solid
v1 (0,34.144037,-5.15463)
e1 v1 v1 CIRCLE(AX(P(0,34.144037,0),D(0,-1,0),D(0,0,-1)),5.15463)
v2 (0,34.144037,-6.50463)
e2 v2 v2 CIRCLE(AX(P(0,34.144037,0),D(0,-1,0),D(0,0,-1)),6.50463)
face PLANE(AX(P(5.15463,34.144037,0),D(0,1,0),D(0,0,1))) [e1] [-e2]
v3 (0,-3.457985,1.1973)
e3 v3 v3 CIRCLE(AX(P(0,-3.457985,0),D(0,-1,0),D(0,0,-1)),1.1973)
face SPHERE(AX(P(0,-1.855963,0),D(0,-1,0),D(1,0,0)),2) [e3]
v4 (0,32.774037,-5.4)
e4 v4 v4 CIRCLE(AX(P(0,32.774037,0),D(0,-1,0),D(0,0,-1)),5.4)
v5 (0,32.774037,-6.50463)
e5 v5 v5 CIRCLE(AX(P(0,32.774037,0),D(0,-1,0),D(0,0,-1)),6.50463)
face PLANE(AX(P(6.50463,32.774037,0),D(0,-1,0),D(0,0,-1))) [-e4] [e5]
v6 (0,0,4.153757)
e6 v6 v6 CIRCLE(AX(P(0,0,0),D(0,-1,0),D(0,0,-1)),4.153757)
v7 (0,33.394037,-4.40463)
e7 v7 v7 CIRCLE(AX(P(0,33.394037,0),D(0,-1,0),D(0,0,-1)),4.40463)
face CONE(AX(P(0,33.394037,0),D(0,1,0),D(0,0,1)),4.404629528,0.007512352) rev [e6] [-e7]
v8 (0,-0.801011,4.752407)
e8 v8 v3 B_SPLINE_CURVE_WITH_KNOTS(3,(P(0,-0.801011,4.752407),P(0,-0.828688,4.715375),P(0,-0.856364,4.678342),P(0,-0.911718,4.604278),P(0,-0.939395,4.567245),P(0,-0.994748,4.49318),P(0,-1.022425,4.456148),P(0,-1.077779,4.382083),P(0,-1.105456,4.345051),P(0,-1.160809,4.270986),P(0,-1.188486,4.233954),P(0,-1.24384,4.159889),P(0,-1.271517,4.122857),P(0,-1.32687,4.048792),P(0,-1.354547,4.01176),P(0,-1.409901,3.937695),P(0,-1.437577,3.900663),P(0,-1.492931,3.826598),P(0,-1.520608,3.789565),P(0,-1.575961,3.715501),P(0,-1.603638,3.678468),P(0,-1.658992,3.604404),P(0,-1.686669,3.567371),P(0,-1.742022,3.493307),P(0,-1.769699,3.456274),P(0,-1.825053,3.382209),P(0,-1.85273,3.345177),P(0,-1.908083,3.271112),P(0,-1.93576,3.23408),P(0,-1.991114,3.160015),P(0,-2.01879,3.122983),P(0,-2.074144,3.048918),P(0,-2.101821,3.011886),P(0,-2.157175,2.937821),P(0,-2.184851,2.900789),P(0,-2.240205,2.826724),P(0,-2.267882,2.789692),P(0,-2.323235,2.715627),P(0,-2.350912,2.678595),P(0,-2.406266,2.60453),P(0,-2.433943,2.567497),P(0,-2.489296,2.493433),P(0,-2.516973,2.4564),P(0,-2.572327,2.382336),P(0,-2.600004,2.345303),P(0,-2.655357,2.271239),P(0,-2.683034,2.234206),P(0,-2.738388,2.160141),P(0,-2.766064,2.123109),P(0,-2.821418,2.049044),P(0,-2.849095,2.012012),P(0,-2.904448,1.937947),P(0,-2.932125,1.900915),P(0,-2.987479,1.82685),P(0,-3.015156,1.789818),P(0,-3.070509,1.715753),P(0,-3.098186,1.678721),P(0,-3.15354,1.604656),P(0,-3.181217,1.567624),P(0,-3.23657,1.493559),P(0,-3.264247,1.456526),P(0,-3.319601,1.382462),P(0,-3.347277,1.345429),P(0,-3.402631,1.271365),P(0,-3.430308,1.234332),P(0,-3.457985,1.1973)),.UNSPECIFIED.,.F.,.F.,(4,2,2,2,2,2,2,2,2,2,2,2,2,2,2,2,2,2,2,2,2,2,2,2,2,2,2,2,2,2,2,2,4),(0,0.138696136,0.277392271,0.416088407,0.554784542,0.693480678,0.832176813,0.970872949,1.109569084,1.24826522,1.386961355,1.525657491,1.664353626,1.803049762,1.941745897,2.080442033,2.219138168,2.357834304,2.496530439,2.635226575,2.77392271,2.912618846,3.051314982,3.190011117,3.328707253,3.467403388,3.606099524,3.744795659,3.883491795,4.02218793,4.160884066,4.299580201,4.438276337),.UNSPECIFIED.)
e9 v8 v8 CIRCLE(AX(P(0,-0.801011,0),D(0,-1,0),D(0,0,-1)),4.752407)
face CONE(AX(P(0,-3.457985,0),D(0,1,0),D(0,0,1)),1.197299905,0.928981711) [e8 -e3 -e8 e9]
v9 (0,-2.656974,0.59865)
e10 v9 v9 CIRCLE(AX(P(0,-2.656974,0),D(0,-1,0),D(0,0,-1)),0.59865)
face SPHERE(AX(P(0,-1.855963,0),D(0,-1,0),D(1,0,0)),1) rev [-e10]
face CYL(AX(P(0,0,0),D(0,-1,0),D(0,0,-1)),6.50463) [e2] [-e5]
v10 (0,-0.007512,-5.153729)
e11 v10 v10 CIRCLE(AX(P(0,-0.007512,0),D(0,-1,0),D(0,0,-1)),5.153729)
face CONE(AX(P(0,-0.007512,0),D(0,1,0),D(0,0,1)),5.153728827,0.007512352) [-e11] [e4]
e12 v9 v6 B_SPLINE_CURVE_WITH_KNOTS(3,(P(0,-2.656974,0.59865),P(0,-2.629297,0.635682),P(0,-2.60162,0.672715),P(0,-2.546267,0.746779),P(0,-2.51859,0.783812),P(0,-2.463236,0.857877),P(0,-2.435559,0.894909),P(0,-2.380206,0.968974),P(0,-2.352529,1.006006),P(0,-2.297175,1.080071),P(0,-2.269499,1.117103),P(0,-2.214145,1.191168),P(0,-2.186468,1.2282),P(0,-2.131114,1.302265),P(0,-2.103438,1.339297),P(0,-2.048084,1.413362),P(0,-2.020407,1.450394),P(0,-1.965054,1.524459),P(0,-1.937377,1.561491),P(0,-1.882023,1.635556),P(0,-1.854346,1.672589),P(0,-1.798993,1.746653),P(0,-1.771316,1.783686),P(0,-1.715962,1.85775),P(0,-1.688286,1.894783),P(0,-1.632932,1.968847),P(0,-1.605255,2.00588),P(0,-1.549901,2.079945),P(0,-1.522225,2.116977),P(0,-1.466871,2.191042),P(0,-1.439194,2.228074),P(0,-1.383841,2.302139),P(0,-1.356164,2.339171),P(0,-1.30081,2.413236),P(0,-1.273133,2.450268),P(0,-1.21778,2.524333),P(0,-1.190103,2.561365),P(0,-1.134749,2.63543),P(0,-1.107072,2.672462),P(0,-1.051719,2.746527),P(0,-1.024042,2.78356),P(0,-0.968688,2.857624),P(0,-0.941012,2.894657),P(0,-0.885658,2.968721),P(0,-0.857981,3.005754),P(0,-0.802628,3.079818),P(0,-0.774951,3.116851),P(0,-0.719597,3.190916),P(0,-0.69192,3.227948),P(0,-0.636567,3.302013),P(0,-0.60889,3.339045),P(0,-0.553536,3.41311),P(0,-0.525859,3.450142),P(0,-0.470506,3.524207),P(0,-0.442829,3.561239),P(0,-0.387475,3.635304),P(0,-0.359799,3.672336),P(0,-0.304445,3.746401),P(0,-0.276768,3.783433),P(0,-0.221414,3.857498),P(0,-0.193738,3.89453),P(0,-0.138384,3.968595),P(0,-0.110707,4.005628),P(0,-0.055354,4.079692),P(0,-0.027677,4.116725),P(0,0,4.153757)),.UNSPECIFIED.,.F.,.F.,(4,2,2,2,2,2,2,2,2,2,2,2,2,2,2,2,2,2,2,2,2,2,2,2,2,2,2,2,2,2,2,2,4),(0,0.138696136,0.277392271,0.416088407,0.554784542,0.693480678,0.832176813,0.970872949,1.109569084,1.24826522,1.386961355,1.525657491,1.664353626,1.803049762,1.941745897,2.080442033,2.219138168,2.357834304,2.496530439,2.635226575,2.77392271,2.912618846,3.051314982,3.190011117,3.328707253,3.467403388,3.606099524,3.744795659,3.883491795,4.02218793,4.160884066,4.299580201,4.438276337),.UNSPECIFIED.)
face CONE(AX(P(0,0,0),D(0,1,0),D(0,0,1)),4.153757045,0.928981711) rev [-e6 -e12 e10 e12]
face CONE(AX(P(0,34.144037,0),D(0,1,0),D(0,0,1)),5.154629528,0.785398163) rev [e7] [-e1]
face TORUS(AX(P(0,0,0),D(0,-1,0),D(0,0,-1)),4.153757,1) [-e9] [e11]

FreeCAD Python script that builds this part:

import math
import FreeCAD as App
import Part
import Sketcher
from FreeCAD import Vector
Q = App.Units.Quantity

doc = App.newDocument("Part")
body = doc.addObject("PartDesign::Body", "Body")

# Sketch on XY plane
sketch1 = body.newObject("Sketcher::SketchObject", "Sketch")
sketch1.AttachmentSupport = (doc.getObject("XY_Plane"), [""])
sketch1.MapMode = "FlatFace"
sketch1.addGeometry([
    Part.LineSegment(Vector(1.1973, -3.457985, 0), Vector(4.752407, -0.801011, 0)),  # 0
    Part.ArcOfCircle(Part.Circle(Vector(4.153757, 0, 0), Vector(0, 0, 1), 1), math.radians(-53.226731), math.radians(-0.430426)),  # 1
    Part.LineSegment(Vector(5.153729, -0.007512, 0), Vector(5.4, 32.774037, 0)),  # 2
    Part.LineSegment(Vector(5.4, 32.774037, 0), Vector(6.50463, 32.774037, 0)),  # 3
    Part.LineSegment(Vector(6.50463, 32.774037, 0), Vector(6.50463, 34.144037, 0)),  # 4
    Part.LineSegment(Vector(6.50463, 34.144037, 0), Vector(5.15463, 34.144037, 0)),  # 5
    Part.LineSegment(Vector(5.15463, 34.144037, 0), Vector(4.40463, 33.394037, 0)),  # 6
    Part.LineSegment(Vector(4.40463, 33.394037, 0), Vector(4.153757, 0, 0)),  # 7
    Part.LineSegment(Vector(4.153757, 0, 0), Vector(0.59865, -2.656974, 0)),  # 8
    Part.ArcOfCircle(Part.Circle(Vector(0, -1.855963, 0), Vector(0, 0, 1), 1), math.radians(-90), math.radians(-53.226731)),  # 9
    Part.LineSegment(Vector(0, -2.855963, 0), Vector(0, -3.855963, 0)),  # 10
    Part.ArcOfCircle(Part.Circle(Vector(0, -1.855963, 0), Vector(0, 0, 1), 2), math.radians(-90), math.radians(-53.226731)),  # 11
], False)
sketch1.addConstraint([
    Sketcher.Constraint("Coincident", 0, 2, 1, 1),
    Sketcher.Constraint("Coincident", 1, 2, 2, 1),
    Sketcher.Constraint("Coincident", 2, 2, 3, 1),
    Sketcher.Constraint("Coincident", 3, 2, 4, 1),
    Sketcher.Constraint("Coincident", 4, 2, 5, 1),
    Sketcher.Constraint("Coincident", 5, 2, 6, 1),
    Sketcher.Constraint("Coincident", 6, 2, 7, 1),
    Sketcher.Constraint("Coincident", 7, 2, 8, 1),
    Sketcher.Constraint("Coincident", 8, 2, 9, 2),
    Sketcher.Constraint("Coincident", 9, 1, 10, 1),
    Sketcher.Constraint("Coincident", 10, 2, 11, 1),
    Sketcher.Constraint("Coincident", 11, 2, 0, 1),
    Sketcher.Constraint("Horizontal", 3),
    Sketcher.Constraint("Vertical", 4),
    Sketcher.Constraint("Horizontal", 5),
    Sketcher.Constraint("Vertical", 10),
    Sketcher.Constraint("Coincident", 11, 3, 9, 3),
    Sketcher.Constraint("Coincident", 7, 2, 1, 3),
    Sketcher.Constraint("PointOnObject", 1, 3, -1),
    Sketcher.Constraint("PointOnObject", 9, 3, -2),
    Sketcher.Constraint("PointOnObject", 9, 1, -2),
    Sketcher.Constraint("Radius", 1, Q("1 mm")),
    Sketcher.Constraint("Radius", 9, Q("1 mm")),
    Sketcher.Constraint("Radius", 11, Q("2 mm")),
    Sketcher.Constraint("DistanceX", 5, 2, 5, 1, Q("1.35 mm")),
    Sketcher.Constraint("DistanceY", 4, 1, 4, 2, Q("1.37 mm")),
    Sketcher.Constraint("DistanceX", -1, 1, 2, 2, Q("5.4 mm")),
    Sketcher.Constraint("DistanceX", 6, 2, 3, 2, Q("2.1 mm")),
    Sketcher.Constraint("DistanceY", 9, 3, 2, 2, Q("34.63 mm")),
    Sketcher.Constraint("DistanceY", 6, 2, 5, 2, Q("0.75 mm")),
    Sketcher.Constraint("DistanceX", 3, 1, 3, 2, Q("1.10463 mm")),
    Sketcher.Constraint("DistanceX", -1, 1, 11, 2, Q("1.1973 mm")),
    Sketcher.Constraint("DistanceY", 0, 2, 1, 2, Q("0.793498 mm")),
    Sketcher.Constraint("DistanceX", 1, 2, 3, 2, Q("1.350901 mm")),
    Sketcher.Constraint("Distance", 7, Q("33.394979 mm")),
    Sketcher.Constraint("DistanceY", 0, 2, -1, 1, Q("0.801011 mm")),
    Sketcher.Constraint("DistanceX", -1, 1, 8, 2, Q("0.59865 mm")),
])
revolution = body.newObject("PartDesign::Revolution", "Revolution")
revolution.Profile = sketch1
revolution.ReferenceAxis = (sketch1, ["V_Axis"])
revolution.Angle = 360

doc.recompute()
